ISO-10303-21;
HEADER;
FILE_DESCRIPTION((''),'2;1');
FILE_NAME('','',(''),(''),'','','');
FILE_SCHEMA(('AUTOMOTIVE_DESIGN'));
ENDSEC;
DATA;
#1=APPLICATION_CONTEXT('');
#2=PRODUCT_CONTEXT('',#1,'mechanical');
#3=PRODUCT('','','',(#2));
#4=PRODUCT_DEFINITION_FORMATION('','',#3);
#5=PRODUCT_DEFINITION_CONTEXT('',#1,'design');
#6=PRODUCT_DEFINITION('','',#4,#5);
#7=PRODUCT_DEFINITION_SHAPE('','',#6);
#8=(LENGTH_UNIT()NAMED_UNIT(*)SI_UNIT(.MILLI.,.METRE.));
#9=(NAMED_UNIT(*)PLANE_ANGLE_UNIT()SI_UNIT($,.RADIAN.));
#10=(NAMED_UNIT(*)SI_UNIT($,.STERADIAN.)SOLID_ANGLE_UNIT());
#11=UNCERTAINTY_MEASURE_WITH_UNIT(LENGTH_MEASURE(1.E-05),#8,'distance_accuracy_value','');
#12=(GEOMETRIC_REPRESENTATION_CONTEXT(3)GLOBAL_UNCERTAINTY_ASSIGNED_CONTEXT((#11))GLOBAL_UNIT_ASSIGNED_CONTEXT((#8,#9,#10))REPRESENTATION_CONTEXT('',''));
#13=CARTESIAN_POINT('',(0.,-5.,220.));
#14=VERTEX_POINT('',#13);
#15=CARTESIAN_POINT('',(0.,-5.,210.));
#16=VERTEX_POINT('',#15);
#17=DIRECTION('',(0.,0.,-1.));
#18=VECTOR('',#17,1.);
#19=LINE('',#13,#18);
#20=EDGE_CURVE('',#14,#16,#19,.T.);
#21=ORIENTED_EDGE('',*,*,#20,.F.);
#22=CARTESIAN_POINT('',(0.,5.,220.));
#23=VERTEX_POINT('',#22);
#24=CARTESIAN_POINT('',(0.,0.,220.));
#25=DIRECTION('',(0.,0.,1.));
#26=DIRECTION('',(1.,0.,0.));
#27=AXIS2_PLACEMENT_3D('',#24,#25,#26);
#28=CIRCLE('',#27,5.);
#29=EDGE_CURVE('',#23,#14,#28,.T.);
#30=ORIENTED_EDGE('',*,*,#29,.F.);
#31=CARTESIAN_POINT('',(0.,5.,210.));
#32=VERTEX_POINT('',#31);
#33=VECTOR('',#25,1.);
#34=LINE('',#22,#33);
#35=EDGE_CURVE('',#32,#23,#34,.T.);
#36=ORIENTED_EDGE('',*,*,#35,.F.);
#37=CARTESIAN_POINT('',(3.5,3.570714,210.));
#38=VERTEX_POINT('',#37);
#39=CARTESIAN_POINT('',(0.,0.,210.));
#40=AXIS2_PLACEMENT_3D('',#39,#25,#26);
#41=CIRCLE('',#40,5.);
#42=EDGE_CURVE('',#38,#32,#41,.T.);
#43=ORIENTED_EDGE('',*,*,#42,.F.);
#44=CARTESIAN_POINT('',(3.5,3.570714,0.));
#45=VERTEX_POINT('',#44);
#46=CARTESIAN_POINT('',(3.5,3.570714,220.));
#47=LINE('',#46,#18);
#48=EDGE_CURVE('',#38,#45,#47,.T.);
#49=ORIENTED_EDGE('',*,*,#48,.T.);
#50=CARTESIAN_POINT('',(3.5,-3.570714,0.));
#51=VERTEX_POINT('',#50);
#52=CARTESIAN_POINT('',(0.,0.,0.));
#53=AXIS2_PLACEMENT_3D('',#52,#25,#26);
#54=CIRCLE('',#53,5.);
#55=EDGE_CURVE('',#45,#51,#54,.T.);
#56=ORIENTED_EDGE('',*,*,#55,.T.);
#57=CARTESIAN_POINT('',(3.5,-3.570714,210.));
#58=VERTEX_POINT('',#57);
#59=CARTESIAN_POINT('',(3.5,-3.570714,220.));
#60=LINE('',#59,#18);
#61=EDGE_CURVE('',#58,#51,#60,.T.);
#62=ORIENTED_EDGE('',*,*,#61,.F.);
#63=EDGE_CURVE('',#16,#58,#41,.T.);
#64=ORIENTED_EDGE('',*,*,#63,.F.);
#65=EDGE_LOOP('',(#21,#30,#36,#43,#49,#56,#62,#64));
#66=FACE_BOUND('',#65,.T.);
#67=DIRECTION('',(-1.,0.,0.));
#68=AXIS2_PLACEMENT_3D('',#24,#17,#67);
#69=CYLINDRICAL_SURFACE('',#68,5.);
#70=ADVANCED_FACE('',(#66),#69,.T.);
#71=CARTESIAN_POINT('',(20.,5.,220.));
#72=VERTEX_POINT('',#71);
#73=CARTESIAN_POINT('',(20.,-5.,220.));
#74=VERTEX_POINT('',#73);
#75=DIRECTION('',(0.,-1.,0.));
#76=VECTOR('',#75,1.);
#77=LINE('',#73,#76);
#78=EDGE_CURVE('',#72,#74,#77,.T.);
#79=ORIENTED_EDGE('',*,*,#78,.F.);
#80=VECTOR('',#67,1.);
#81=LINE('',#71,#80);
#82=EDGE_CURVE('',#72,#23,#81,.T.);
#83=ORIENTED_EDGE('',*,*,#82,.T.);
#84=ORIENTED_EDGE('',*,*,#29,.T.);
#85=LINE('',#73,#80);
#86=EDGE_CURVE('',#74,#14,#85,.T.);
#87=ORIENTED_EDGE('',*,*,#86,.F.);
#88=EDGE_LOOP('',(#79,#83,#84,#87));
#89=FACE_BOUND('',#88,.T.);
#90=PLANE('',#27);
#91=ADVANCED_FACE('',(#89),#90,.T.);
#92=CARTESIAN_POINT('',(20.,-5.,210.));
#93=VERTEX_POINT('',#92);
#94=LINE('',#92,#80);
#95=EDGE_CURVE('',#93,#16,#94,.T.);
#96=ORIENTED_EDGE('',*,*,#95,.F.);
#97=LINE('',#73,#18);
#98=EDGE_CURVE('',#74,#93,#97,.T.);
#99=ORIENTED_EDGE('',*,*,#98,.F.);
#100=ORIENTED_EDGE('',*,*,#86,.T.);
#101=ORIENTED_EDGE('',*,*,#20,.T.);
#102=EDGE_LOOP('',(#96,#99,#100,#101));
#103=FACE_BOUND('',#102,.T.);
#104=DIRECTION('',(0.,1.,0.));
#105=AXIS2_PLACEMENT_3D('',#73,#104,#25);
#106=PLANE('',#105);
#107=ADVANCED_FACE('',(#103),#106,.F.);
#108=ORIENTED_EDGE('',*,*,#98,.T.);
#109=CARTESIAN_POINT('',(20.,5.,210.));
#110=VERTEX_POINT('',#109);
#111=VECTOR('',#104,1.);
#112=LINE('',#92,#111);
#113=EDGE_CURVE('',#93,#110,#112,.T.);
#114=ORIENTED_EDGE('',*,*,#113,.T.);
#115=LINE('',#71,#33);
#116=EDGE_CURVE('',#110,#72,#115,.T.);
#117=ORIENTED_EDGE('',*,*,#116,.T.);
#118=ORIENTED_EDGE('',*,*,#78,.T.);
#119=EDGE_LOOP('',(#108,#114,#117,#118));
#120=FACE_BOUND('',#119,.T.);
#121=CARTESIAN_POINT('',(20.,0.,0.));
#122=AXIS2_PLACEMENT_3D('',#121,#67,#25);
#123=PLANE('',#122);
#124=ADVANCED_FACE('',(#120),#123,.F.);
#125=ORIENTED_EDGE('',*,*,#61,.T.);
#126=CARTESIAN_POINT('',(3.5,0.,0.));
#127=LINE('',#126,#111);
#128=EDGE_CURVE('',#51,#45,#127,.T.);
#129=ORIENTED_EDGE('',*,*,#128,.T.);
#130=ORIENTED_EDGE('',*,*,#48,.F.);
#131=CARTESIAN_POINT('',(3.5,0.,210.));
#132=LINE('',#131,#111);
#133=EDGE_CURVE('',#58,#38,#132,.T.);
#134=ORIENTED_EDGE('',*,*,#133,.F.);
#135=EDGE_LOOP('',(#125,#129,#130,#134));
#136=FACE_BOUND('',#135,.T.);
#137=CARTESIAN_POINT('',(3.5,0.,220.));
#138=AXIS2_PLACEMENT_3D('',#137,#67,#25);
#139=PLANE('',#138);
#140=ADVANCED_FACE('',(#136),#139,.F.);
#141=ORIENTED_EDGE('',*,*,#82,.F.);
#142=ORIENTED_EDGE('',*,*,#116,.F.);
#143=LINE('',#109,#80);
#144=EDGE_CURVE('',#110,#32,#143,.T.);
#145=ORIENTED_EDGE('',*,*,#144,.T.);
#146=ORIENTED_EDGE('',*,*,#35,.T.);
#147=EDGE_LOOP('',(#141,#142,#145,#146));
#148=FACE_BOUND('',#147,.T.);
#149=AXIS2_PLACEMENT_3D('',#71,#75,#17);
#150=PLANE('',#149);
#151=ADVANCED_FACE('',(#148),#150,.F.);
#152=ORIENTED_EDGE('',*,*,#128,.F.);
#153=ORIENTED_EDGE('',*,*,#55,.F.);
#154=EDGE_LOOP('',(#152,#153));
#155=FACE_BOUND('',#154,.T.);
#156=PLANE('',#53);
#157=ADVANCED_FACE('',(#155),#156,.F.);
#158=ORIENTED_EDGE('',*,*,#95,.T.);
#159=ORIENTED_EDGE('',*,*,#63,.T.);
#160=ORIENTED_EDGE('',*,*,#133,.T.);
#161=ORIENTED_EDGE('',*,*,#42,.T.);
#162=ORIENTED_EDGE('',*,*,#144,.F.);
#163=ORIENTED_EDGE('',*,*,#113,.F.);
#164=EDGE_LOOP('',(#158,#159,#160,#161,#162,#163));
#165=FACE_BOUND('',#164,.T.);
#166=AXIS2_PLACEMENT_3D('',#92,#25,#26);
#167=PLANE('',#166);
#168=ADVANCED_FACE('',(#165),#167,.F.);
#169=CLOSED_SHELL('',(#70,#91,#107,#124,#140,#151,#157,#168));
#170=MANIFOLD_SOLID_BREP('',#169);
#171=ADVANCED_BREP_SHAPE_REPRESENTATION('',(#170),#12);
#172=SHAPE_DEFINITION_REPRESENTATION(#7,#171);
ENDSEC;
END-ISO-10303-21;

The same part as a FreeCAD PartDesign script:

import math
import FreeCAD as App
import Part
import Sketcher

V = App.Vector
Q = App.Units.Quantity

doc = App.newDocument("Part")
body = doc.addObject("PartDesign::Body", "Body")

# Sketch on XY plane
sketch1 = doc.addObject("Sketcher::SketchObject", "Sketch")
body.addObject(sketch1)
sketch1.AttachmentSupport = (doc.XY_Plane, [""])
sketch1.MapMode = "FlatFace"
sketch1.addGeometry(Part.ArcOfCircle(Part.Circle(V(0, 0, 0), V(0, 0, 1), 5), math.radians(45.572996), math.radians(314.427004)), False)
sketch1.addGeometry(Part.LineSegment(V(3.5, -3.570714, 0), V(3.5, 3.570714, 0)), False)
sketch1.addConstraint(Sketcher.Constraint("Coincident", 0, 1, 1, 2))
sketch1.addConstraint(Sketcher.Constraint("Coincident", 1, 1, 0, 2))
sketch1.addConstraint(Sketcher.Constraint("Vertical", 1))
sketch1.addConstraint(Sketcher.Constraint("Coincident", 0, 3, -1, 1))
sketch1.addConstraint(Sketcher.Constraint("Radius", 0, Q("5 mm")))
sketch1.addConstraint(Sketcher.Constraint("DistanceX", -1, 1, 0, 1, Q("3.5 mm")))
pad1 = doc.addObject("PartDesign::Pad", "Pad")
body.addObject(pad1)
pad1.Profile = sketch1
pad1.Length = 220

# Sketch on YZ plane
sketch2 = doc.addObject("Sketcher::SketchObject", "Sketch001")
body.addObject(sketch2)
sketch2.AttachmentSupport = (doc.YZ_Plane, [""])
sketch2.MapMode = "FlatFace"
sketch2.addGeometry(Part.LineSegment(V(5, 220, 0), V(-5, 220, 0)), False)
sketch2.addGeometry(Part.LineSegment(V(-5, 220, 0), V(-5, 210, 0)), False)
sketch2.addGeometry(Part.LineSegment(V(-5, 210, 0), V(5, 210, 0)), False)
sketch2.addGeometry(Part.LineSegment(V(5, 210, 0), V(5, 220, 0)), False)
sketch2.addConstraint(Sketcher.Constraint("Coincident", 0, 2, 1, 1))
sketch2.addConstraint(Sketcher.Constraint("Coincident", 1, 2, 2, 1))
sketch2.addConstraint(Sketcher.Constraint("Coincident", 2, 2, 3, 1))
sketch2.addConstraint(Sketcher.Constraint("Coincident", 3, 2, 0, 1))
sketch2.addConstraint(Sketcher.Constraint("Horizontal", 0))
sketch2.addConstraint(Sketcher.Constraint("Vertical", 1))
sketch2.addConstraint(Sketcher.Constraint("Horizontal", 2))
sketch2.addConstraint(Sketcher.Constraint("Vertical", 3))
sketch2.addConstraint(Sketcher.Constraint("Equal", 2, 1))
sketch2.addConstraint(Sketcher.Constraint("DistanceX", 0, 2, 0, 1, Q("10 mm")))
sketch2.addConstraint(Sketcher.Constraint("DistanceX", 0, 2, -1, 1, Q("5 mm")))
sketch2.addConstraint(Sketcher.Constraint("DistanceY", -1, 1, 0, 2, Q("220 mm")))
pad2 = doc.addObject("PartDesign::Pad", "Pad001")
body.addObject(pad2)
pad2.Profile = sketch2
pad2.Length = 20

doc.recompute()
